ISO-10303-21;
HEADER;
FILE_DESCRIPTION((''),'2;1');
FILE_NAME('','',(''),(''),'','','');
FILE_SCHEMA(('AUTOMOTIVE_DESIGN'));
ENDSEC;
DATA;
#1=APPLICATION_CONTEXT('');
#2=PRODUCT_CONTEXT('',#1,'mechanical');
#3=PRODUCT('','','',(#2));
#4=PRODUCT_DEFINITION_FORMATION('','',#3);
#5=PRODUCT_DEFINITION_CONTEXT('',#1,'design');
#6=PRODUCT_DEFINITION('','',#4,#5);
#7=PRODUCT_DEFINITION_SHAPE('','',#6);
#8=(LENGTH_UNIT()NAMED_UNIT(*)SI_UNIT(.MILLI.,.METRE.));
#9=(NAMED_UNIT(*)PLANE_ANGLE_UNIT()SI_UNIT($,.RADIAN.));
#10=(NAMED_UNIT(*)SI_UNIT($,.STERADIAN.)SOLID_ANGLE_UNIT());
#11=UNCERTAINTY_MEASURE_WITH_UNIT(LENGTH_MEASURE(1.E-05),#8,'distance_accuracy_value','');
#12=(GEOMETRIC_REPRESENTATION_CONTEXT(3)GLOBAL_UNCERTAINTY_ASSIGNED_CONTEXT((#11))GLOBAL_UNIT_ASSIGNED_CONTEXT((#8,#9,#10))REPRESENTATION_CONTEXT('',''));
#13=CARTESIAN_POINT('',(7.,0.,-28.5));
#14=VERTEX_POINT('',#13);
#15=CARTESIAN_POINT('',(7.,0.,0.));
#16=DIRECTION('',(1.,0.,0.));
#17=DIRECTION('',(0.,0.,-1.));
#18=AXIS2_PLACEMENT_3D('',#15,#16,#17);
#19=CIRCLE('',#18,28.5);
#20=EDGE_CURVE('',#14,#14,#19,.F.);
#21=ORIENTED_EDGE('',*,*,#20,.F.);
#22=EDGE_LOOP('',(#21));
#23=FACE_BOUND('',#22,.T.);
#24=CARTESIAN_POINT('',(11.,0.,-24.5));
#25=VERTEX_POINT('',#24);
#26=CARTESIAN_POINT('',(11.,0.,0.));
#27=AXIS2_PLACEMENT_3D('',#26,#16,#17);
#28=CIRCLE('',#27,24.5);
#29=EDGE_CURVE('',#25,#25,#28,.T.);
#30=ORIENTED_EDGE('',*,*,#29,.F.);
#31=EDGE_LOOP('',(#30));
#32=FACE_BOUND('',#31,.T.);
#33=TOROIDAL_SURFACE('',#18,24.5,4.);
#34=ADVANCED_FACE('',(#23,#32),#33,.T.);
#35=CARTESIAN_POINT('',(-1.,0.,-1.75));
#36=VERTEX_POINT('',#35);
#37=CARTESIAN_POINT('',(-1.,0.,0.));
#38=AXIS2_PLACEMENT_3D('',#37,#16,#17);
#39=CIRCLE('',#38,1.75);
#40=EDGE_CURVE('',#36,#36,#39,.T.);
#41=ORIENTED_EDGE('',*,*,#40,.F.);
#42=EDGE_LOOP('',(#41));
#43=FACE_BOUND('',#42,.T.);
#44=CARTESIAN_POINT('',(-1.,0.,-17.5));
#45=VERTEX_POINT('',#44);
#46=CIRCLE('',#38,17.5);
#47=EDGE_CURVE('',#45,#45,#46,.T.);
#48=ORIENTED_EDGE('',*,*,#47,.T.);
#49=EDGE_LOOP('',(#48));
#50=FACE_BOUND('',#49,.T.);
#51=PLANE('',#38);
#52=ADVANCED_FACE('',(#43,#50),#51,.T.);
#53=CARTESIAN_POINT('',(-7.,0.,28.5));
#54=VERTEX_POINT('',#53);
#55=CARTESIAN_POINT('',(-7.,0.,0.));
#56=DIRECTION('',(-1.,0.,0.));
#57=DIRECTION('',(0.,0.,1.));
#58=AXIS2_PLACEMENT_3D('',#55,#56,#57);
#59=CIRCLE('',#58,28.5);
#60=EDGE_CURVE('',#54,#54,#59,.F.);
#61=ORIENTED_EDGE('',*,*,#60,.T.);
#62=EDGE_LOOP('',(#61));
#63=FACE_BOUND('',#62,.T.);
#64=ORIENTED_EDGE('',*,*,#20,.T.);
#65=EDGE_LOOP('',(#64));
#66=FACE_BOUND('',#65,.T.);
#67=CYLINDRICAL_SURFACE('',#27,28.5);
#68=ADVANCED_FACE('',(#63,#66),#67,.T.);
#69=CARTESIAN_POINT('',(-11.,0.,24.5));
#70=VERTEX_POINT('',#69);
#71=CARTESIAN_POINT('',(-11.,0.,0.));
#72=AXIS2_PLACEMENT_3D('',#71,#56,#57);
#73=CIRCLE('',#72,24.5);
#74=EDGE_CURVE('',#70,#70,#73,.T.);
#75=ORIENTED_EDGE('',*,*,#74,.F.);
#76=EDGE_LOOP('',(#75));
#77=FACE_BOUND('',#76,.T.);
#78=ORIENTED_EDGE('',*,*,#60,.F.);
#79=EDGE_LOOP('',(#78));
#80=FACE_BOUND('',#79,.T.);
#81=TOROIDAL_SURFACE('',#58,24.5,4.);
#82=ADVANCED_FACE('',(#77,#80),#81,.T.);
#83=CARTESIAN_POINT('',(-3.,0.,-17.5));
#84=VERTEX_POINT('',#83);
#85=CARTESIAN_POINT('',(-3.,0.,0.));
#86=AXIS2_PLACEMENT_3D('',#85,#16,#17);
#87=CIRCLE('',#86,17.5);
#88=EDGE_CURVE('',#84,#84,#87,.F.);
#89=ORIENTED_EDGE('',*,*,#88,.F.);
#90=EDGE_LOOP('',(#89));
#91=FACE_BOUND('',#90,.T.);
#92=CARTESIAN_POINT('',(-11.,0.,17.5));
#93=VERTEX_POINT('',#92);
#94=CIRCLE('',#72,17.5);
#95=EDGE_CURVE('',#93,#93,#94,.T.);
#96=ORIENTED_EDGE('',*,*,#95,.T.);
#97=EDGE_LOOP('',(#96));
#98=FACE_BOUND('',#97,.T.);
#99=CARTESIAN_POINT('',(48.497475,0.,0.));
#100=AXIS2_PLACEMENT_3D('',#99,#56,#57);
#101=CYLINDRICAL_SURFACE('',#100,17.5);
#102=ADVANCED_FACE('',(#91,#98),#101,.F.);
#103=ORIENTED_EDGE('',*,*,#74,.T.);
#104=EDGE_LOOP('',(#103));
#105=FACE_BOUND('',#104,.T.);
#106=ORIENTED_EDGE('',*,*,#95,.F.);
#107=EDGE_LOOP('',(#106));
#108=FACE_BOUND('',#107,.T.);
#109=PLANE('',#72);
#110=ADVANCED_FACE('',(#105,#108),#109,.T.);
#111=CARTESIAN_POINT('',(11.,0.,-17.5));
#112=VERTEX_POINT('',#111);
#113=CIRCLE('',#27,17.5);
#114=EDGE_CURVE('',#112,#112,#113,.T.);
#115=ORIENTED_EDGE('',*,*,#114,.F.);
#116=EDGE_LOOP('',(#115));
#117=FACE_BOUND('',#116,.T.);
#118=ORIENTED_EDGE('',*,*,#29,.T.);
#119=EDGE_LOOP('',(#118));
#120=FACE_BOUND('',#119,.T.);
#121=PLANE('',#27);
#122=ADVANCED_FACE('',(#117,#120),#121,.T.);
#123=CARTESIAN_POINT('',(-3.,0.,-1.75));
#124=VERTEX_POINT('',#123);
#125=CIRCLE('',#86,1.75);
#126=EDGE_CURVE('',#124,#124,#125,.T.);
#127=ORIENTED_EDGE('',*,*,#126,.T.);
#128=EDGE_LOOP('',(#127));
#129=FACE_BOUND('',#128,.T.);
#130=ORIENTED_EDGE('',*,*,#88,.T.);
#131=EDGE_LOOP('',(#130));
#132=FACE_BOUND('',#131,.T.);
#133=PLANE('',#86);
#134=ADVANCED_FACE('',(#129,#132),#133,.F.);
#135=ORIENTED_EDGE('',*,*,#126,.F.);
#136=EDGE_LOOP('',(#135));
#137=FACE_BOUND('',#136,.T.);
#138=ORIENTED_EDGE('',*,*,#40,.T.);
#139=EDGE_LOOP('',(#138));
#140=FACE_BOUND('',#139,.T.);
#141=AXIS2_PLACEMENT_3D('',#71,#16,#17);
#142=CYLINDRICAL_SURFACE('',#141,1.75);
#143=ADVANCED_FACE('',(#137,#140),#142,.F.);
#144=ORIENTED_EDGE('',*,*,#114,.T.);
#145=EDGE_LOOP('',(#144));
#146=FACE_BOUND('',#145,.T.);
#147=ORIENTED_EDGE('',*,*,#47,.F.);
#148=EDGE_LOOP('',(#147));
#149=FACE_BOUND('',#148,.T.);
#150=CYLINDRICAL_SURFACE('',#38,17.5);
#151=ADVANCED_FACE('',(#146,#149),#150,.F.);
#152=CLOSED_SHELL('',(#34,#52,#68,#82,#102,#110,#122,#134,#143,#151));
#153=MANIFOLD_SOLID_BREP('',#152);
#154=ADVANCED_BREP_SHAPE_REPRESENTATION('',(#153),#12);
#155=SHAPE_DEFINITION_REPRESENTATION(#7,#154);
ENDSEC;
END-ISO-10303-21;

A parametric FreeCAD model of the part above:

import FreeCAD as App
import Part
import Sketcher
from FreeCAD import Vector
Q = App.Units.Quantity


def edges_at(feature, points):
    """Names of the edges that pass closest to the given points."""
    edges = feature.Shape.Edges
    near = lambda p: min(range(len(edges)), key=lambda i: edges[i].distToShape(Part.Vertex(*p))[0])
    return sorted({f"Edge{near(p) + 1}" for p in points})

doc = App.newDocument("Part")
body = doc.addObject("PartDesign::Body", "Body")

# Sketch on XZ plane
sketch1 = body.newObject("Sketcher::SketchObject", "Sketch")
sketch1.AttachmentSupport = (doc.getObject("XZ_Plane"), [""])
sketch1.MapMode = "FlatFace"
sketch1.addGeometry([
    Part.LineSegment(Vector(-11, -28, 0), Vector(-11, 0, 0)),
    Part.LineSegment(Vector(-11, 0, 0), Vector(11, 0, 0)),
    Part.LineSegment(Vector(11, 0, 0), Vector(11, -28, 0)),
    Part.LineSegment(Vector(11, -28, 0), Vector(-11, -28, 0)),
], False)
sketch1.addConstraint([
    Sketcher.Constraint("Coincident", 0, 2, 1, 1),
    Sketcher.Constraint("Coincident", 1, 2, 2, 1),
    Sketcher.Constraint("Coincident", 2, 2, 3, 1),
    Sketcher.Constraint("Coincident", 3, 2, 0, 1),
    Sketcher.Constraint("Vertical", 0),
    Sketcher.Constraint("Horizontal", 1),
    Sketcher.Constraint("Vertical", 2),
    Sketcher.Constraint("Horizontal", 3),
    Sketcher.Constraint("Symmetric", 0, 2, 1, 2, -1, 1),
    Sketcher.Constraint("DistanceX", 1, 1, 1, 2, Q("22 mm")),
    Sketcher.Constraint("DistanceY", 0, 1, 0, 2, Q("28.5 mm")),
])
revolution = body.newObject("PartDesign::Revolution", "Revolution")
revolution.Profile = sketch1
revolution.ReferenceAxis = (sketch1, ["H_Axis"])
revolution.Angle = 360
doc.recompute()

fillet = body.newObject("PartDesign::Fillet", "Fillet")
fillet.Base = (revolution, edges_at(revolution, [(11, 0, 28.5), (-11, 0, 28.5)]))
fillet.Radius = 4

# Sketch on YZ plane
sketch2 = body.newObject("Sketcher::SketchObject", "Sketch001")
sketch2.AttachmentSupport = (doc.getObject("YZ_Plane"), [""])
sketch2.MapMode = "FlatFace"
sketch2.AttachmentOffset = App.Placement(Vector(0, 0, 11), App.Rotation())
sketch2.addGeometry(Part.Circle(Vector(0, 0, 0), Vector(0, 0, 1), 18), False)
sketch2.addConstraint([
    Sketcher.Constraint("Coincident", 0, 3, -1, 1),
    Sketcher.Constraint("Diameter", 0, Q("35 mm")),
])
pocket1 = body.newObject("PartDesign::Pocket", "Pocket")
pocket1.Profile = sketch2
pocket1.Length = 12

# Sketch on YZ plane
sketch3 = body.newObject("Sketcher::SketchObject", "Sketch002")
sketch3.AttachmentSupport = (doc.getObject("YZ_Plane"), [""])
sketch3.MapMode = "FlatFace"
sketch3.AttachmentOffset = App.Placement(Vector(0, 0, -11), App.Rotation())
sketch3.addGeometry(Part.Circle(Vector(0, 0, 0), Vector(0, 0, 1), 18), False)
sketch3.addConstraint([
    Sketcher.Constraint("Coincident", 0, 3, -1, 1),
    Sketcher.Constraint("Diameter", 0, Q("35 mm")),
])
pocket2 = body.newObject("PartDesign::Pocket", "Pocket001")
pocket2.Profile = sketch3
pocket2.Length = 8
pocket2.Reversed = True

# Sketch on YZ plane
sketch4 = body.newObject("Sketcher::SketchObject", "Sketch003")
sketch4.AttachmentSupport = (doc.getObject("YZ_Plane"), [""])
sketch4.MapMode = "FlatFace"
sketch4.AttachmentOffset = App.Placement(Vector(0, 0, -1), App.Rotation())
sketch4.addGeometry(Part.Circle(Vector(0, 0, 0), Vector(0, 0, 1), 1.8), False)
sketch4.addConstraint([
    Sketcher.Constraint("Coincident", 0, 3, -1, 1),
    Sketcher.Constraint("Diameter", 0, Q("3.5 mm")),
])
pocket3 = body.newObject("PartDesign::Pocket", "Pocket002")
pocket3.Profile = sketch4
pocket3.Type = "ThroughAll"

doc.recompute()
